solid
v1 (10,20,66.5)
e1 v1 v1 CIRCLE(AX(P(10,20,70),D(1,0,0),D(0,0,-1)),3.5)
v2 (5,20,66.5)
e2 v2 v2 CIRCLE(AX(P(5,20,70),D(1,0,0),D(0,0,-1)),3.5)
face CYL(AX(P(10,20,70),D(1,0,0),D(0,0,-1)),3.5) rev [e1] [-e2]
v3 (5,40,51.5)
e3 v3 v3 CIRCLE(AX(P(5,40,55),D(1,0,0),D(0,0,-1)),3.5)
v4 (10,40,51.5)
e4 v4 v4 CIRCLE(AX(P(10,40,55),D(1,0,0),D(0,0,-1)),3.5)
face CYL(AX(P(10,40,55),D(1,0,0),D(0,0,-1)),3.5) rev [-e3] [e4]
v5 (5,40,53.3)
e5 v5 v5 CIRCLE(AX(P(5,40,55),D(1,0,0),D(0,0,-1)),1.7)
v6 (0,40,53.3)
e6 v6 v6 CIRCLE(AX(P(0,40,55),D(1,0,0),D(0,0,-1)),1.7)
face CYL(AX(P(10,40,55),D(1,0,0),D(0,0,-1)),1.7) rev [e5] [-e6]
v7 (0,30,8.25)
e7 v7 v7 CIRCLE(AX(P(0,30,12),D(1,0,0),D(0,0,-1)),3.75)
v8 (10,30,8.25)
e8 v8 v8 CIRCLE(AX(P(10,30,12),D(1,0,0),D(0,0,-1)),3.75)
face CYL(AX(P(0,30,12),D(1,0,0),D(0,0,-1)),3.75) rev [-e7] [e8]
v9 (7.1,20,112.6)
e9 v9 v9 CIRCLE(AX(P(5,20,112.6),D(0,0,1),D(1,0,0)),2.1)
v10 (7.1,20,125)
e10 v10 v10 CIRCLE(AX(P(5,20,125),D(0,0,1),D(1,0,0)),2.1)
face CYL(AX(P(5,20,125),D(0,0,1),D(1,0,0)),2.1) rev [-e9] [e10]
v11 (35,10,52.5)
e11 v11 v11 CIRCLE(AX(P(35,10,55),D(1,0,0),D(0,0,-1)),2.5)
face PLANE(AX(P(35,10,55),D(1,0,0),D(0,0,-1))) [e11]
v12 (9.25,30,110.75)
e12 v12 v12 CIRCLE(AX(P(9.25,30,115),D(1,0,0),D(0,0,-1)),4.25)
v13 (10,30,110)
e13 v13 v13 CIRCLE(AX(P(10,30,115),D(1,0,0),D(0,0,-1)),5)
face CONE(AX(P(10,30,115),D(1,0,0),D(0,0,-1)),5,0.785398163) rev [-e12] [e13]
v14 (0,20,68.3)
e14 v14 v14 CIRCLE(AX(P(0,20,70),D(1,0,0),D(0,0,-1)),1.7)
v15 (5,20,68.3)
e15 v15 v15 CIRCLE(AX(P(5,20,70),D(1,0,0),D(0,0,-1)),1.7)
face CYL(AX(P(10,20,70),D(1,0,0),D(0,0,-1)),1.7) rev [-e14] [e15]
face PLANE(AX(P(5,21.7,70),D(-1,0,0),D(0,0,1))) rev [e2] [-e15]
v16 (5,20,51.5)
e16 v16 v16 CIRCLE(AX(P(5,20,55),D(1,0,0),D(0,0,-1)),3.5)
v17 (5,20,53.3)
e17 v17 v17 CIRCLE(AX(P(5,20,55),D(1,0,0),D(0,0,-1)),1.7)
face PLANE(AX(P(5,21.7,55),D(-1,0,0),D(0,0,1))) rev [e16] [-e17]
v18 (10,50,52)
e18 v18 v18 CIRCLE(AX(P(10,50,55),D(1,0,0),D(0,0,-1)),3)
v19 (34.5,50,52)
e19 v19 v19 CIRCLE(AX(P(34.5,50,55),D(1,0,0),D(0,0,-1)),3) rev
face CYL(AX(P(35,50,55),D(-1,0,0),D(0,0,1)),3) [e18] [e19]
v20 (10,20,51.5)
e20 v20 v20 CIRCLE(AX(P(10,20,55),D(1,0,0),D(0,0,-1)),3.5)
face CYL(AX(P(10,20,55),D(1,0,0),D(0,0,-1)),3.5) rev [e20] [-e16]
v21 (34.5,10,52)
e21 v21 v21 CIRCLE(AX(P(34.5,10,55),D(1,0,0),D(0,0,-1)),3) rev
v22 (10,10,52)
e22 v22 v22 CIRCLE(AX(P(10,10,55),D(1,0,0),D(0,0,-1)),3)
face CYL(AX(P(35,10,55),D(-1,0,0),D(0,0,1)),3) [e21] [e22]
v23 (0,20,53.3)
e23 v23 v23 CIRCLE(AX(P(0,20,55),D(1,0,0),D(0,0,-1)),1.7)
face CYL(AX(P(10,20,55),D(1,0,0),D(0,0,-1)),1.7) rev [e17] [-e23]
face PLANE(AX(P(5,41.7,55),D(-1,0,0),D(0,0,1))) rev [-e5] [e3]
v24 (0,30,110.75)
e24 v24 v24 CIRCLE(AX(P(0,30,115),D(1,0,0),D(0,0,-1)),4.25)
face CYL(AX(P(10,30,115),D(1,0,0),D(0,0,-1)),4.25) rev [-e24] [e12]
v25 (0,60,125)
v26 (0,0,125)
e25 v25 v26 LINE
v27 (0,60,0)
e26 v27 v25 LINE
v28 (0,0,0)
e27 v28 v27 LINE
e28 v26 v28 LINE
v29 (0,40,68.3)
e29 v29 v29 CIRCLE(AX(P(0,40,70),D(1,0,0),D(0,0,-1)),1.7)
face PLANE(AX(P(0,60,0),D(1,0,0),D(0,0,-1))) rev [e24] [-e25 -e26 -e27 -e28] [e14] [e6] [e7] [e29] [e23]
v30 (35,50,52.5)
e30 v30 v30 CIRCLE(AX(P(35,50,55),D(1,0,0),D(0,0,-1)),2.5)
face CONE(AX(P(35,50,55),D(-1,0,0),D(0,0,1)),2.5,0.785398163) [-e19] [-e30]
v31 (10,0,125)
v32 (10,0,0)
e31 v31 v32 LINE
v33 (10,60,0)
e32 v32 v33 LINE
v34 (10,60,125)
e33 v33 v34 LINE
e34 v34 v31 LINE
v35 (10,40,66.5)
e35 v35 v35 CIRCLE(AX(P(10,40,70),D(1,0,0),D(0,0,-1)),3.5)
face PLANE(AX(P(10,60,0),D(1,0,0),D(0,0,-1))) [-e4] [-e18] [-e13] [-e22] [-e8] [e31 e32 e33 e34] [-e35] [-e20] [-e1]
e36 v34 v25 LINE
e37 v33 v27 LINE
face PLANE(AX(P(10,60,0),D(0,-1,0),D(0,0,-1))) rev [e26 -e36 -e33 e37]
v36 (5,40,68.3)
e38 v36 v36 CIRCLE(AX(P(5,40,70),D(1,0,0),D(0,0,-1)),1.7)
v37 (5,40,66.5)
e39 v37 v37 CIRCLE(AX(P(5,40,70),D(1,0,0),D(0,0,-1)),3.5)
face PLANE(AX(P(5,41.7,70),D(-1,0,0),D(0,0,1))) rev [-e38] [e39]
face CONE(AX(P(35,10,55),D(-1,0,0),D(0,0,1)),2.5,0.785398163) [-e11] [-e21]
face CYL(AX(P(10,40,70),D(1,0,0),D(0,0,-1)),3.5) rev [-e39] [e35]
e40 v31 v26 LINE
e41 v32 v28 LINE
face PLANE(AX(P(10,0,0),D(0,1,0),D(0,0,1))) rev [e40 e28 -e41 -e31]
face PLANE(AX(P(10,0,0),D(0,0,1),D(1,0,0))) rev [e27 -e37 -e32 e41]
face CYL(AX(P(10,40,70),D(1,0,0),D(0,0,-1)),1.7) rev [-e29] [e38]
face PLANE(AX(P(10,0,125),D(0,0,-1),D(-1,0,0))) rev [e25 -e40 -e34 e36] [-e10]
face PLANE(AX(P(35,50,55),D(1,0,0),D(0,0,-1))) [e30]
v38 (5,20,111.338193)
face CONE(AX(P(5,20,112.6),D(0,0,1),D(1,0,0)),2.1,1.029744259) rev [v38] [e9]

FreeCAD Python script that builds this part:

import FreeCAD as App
import Part
import Sketcher


def edges_at(feature, points):
    """Names of the edges that pass closest to the given points."""
    edges = feature.Shape.Edges
    near = lambda p: min(range(len(edges)), key=lambda i: edges[i].distToShape(Part.Vertex(*p))[0])
    return sorted({f"Edge{near(p) + 1}" for p in points})

doc = App.newDocument("Part")
body = doc.addObject("PartDesign::Body", "Body")

# Sketch on YZ plane
sketch1 = body.newObject("Sketcher::SketchObject", "Sketch")
sketch1.AttachmentSupport = (doc.getObject("YZ_Plane"), [""])
sketch1.MapMode = "FlatFace"
sketch1.addGeometry([
    Part.LineSegment(App.Vector(60, 125, 0), App.Vector(0, 125, 0)),
    Part.LineSegment(App.Vector(0, 125, 0), App.Vector(0, 0, 0)),
    Part.LineSegment(App.Vector(0, 0, 0), App.Vector(60, 0, 0)),
    Part.LineSegment(App.Vector(60, 0, 0), App.Vector(60, 125, 0)),
], False)
sketch1.addConstraint([
    Sketcher.Constraint("Coincident", 0, 2, 1, 1),
    Sketcher.Constraint("Coincident", 1, 2, 2, 1),
    Sketcher.Constraint("Coincident", 2, 2, 3, 1),
    Sketcher.Constraint("Coincident", 3, 2, 0, 1),
    Sketcher.Constraint("Horizontal", 0),
    Sketcher.Constraint("Vertical", 1),
    Sketcher.Constraint("Horizontal", 2),
    Sketcher.Constraint("Vertical", 3),
    Sketcher.Constraint("Coincident", 1, 2, -1, 1),
    Sketcher.Constraint("DistanceX", 0, 2, 0, 1, 60.0),
    Sketcher.Constraint("DistanceY", 1, 2, 1, 1, 125.0),
])
pad1 = body.newObject("PartDesign::Pad", "Pad")
pad1.Profile = sketch1
pad1.Length = 10

# Sketch on YZ plane
sketch2 = body.newObject("Sketcher::SketchObject", "Sketch001")
sketch2.AttachmentSupport = (doc.getObject("YZ_Plane"), [""])
sketch2.MapMode = "FlatFace"
sketch2.AttachmentOffset = App.Placement(App.Vector(0, 0, 10), App.Rotation())
sketch2.addGeometry([
    Part.Circle(App.Vector(10, 55, 0), App.Vector(0, 0, 1), 3),
    Part.Circle(App.Vector(50, 55, 0), App.Vector(0, 0, 1), 3),
], False)
sketch2.addConstraint([
    Sketcher.Constraint("Equal", 0, 1),
    Sketcher.Constraint("Horizontal", 0, 3, 1, 3),
    Sketcher.Constraint("Diameter", 0, 6.0),
    Sketcher.Constraint("DistanceX", -1, 1, 0, 3, 10.0),
    Sketcher.Constraint("DistanceY", -1, 1, 0, 3, 55.0),
    Sketcher.Constraint("DistanceX", -1, 1, 1, 3, 50.0),
])
pad2 = body.newObject("PartDesign::Pad", "Pad001")
pad2.Profile = sketch2
pad2.Length = 25

# Sketch on YZ plane
sketch3 = body.newObject("Sketcher::SketchObject", "Sketch002")
sketch3.AttachmentSupport = (doc.getObject("YZ_Plane"), [""])
sketch3.MapMode = "FlatFace"
sketch3.AttachmentOffset = App.Placement(App.Vector(0, 0, 10), App.Rotation())
sketch3.addGeometry(Part.Circle(App.Vector(30, 115, 0), App.Vector(0, 0, 1), 4.25), False)
sketch3.addConstraint([
    Sketcher.Constraint("Diameter", 0, 8.5),
    Sketcher.Constraint("DistanceX", -1, 1, 0, 3, 30.0),
    Sketcher.Constraint("DistanceY", -1, 1, 0, 3, 115.0),
])
doc.recompute()
hole = body.newObject("PartDesign::Hole", "Hole")
hole.Profile = sketch3
hole.ThreadType = "None"
hole.Diameter = 8.5
hole.DepthType = "Dimension"
hole.Depth = 24.5
hole.DrillPoint = "Angled"
hole.DrillPointAngle = 118
hole.HoleCutType = "Countersink"
hole.HoleCutDiameter = 10
hole.HoleCutCountersinkAngle = 90

# Sketch on YZ plane
sketch4 = body.newObject("Sketcher::SketchObject", "Sketch003")
sketch4.AttachmentSupport = (doc.getObject("YZ_Plane"), [""])
sketch4.MapMode = "FlatFace"
sketch4.AttachmentOffset = App.Placement(App.Vector(0, 0, 10), App.Rotation())
sketch4.addGeometry(Part.Circle(App.Vector(30, 12, 0), App.Vector(0, 0, 1), 3.75), False)
sketch4.addConstraint([
    Sketcher.Constraint("Diameter", 0, 7.5),
    Sketcher.Constraint("DistanceX", -1, 1, 0, 3, 30.0),
    Sketcher.Constraint("DistanceY", -1, 1, 0, 3, 12.0),
])
pocket1 = body.newObject("PartDesign::Pocket", "Pocket")
pocket1.Profile = sketch4
pocket1.Type = "ThroughAll"

# Sketch on YZ plane
sketch5 = body.newObject("Sketcher::SketchObject", "Sketch004")
sketch5.AttachmentSupport = (doc.getObject("YZ_Plane"), [""])
sketch5.MapMode = "FlatFace"
sketch5.AttachmentOffset = App.Placement(App.Vector(0, 0, 10), App.Rotation())
sketch5.addGeometry([
    Part.Circle(App.Vector(20, 70, 0), App.Vector(0, 0, 1), 1.7),
    Part.Circle(App.Vector(20, 55, 0), App.Vector(0, 0, 1), 1.7),
    Part.Circle(App.Vector(40, 55, 0), App.Vector(0, 0, 1), 1.7),
    Part.Circle(App.Vector(40, 70, 0), App.Vector(0, 0, 1), 1.7),
], False)
sketch5.addConstraint([
    Sketcher.Constraint("Equal", 0, 1),
    Sketcher.Constraint("Equal", 1, 2),
    Sketcher.Constraint("Equal", 2, 3),
    Sketcher.Constraint("Horizontal", 1, 3, 2, 3),
    Sketcher.Constraint("Horizontal", 0, 3, 3, 3),
    Sketcher.Constraint("Vertical", 0, 3, 1, 3),
    Sketcher.Constraint("Vertical", 2, 3, 3, 3),
    Sketcher.Constraint("Diameter", 0, 3.4),
    Sketcher.Constraint("DistanceX", -1, 1, 0, 3, 20.0),
    Sketcher.Constraint("DistanceY", -1, 1, 0, 3, 70.0),
    Sketcher.Constraint("DistanceY", -1, 1, 1, 3, 55.0),
    Sketcher.Constraint("DistanceX", -1, 1, 2, 3, 40.0),
])
doc.recompute()
hole2 = body.newObject("PartDesign::Hole", "Hole001")
hole2.Profile = sketch5
hole2.ThreadType = "None"
hole2.Diameter = 3.4
hole2.DepthType = "ThroughAll"
hole2.HoleCutType = "Counterbore"
hole2.HoleCutDiameter = 7
hole2.HoleCutDepth = 5

# Sketch on XY plane
sketch6 = body.newObject("Sketcher::SketchObject", "Sketch005")
sketch6.AttachmentSupport = (doc.getObject("XY_Plane"), [""])
sketch6.MapMode = "FlatFace"
sketch6.AttachmentOffset = App.Placement(App.Vector(0, 0, 125), App.Rotation())
sketch6.addGeometry(Part.Circle(App.Vector(5, 20, 0), App.Vector(0, 0, 1), 2.1), False)
sketch6.addConstraint([
    Sketcher.Constraint("Diameter", 0, 4.2),
    Sketcher.Constraint("DistanceX", -1, 1, 0, 3, 5.0),
    Sketcher.Constraint("DistanceY", -1, 1, 0, 3, 20.0),
])
doc.recompute()
hole3 = body.newObject("PartDesign::Hole", "Hole002")
hole3.Profile = sketch6
hole3.ThreadType = "None"
hole3.Diameter = 4.2
hole3.DepthType = "Dimension"
hole3.Depth = 12.4
hole3.DrillPoint = "Angled"
hole3.DrillPointAngle = 118
doc.recompute()

chamfer = body.newObject("PartDesign::Chamfer", "Chamfer")
chamfer.Base = (hole3, edges_at(hole3, [(35, 10, 58), (35, 50, 58)]))
chamfer.Size = 0.5

doc.recompute()
